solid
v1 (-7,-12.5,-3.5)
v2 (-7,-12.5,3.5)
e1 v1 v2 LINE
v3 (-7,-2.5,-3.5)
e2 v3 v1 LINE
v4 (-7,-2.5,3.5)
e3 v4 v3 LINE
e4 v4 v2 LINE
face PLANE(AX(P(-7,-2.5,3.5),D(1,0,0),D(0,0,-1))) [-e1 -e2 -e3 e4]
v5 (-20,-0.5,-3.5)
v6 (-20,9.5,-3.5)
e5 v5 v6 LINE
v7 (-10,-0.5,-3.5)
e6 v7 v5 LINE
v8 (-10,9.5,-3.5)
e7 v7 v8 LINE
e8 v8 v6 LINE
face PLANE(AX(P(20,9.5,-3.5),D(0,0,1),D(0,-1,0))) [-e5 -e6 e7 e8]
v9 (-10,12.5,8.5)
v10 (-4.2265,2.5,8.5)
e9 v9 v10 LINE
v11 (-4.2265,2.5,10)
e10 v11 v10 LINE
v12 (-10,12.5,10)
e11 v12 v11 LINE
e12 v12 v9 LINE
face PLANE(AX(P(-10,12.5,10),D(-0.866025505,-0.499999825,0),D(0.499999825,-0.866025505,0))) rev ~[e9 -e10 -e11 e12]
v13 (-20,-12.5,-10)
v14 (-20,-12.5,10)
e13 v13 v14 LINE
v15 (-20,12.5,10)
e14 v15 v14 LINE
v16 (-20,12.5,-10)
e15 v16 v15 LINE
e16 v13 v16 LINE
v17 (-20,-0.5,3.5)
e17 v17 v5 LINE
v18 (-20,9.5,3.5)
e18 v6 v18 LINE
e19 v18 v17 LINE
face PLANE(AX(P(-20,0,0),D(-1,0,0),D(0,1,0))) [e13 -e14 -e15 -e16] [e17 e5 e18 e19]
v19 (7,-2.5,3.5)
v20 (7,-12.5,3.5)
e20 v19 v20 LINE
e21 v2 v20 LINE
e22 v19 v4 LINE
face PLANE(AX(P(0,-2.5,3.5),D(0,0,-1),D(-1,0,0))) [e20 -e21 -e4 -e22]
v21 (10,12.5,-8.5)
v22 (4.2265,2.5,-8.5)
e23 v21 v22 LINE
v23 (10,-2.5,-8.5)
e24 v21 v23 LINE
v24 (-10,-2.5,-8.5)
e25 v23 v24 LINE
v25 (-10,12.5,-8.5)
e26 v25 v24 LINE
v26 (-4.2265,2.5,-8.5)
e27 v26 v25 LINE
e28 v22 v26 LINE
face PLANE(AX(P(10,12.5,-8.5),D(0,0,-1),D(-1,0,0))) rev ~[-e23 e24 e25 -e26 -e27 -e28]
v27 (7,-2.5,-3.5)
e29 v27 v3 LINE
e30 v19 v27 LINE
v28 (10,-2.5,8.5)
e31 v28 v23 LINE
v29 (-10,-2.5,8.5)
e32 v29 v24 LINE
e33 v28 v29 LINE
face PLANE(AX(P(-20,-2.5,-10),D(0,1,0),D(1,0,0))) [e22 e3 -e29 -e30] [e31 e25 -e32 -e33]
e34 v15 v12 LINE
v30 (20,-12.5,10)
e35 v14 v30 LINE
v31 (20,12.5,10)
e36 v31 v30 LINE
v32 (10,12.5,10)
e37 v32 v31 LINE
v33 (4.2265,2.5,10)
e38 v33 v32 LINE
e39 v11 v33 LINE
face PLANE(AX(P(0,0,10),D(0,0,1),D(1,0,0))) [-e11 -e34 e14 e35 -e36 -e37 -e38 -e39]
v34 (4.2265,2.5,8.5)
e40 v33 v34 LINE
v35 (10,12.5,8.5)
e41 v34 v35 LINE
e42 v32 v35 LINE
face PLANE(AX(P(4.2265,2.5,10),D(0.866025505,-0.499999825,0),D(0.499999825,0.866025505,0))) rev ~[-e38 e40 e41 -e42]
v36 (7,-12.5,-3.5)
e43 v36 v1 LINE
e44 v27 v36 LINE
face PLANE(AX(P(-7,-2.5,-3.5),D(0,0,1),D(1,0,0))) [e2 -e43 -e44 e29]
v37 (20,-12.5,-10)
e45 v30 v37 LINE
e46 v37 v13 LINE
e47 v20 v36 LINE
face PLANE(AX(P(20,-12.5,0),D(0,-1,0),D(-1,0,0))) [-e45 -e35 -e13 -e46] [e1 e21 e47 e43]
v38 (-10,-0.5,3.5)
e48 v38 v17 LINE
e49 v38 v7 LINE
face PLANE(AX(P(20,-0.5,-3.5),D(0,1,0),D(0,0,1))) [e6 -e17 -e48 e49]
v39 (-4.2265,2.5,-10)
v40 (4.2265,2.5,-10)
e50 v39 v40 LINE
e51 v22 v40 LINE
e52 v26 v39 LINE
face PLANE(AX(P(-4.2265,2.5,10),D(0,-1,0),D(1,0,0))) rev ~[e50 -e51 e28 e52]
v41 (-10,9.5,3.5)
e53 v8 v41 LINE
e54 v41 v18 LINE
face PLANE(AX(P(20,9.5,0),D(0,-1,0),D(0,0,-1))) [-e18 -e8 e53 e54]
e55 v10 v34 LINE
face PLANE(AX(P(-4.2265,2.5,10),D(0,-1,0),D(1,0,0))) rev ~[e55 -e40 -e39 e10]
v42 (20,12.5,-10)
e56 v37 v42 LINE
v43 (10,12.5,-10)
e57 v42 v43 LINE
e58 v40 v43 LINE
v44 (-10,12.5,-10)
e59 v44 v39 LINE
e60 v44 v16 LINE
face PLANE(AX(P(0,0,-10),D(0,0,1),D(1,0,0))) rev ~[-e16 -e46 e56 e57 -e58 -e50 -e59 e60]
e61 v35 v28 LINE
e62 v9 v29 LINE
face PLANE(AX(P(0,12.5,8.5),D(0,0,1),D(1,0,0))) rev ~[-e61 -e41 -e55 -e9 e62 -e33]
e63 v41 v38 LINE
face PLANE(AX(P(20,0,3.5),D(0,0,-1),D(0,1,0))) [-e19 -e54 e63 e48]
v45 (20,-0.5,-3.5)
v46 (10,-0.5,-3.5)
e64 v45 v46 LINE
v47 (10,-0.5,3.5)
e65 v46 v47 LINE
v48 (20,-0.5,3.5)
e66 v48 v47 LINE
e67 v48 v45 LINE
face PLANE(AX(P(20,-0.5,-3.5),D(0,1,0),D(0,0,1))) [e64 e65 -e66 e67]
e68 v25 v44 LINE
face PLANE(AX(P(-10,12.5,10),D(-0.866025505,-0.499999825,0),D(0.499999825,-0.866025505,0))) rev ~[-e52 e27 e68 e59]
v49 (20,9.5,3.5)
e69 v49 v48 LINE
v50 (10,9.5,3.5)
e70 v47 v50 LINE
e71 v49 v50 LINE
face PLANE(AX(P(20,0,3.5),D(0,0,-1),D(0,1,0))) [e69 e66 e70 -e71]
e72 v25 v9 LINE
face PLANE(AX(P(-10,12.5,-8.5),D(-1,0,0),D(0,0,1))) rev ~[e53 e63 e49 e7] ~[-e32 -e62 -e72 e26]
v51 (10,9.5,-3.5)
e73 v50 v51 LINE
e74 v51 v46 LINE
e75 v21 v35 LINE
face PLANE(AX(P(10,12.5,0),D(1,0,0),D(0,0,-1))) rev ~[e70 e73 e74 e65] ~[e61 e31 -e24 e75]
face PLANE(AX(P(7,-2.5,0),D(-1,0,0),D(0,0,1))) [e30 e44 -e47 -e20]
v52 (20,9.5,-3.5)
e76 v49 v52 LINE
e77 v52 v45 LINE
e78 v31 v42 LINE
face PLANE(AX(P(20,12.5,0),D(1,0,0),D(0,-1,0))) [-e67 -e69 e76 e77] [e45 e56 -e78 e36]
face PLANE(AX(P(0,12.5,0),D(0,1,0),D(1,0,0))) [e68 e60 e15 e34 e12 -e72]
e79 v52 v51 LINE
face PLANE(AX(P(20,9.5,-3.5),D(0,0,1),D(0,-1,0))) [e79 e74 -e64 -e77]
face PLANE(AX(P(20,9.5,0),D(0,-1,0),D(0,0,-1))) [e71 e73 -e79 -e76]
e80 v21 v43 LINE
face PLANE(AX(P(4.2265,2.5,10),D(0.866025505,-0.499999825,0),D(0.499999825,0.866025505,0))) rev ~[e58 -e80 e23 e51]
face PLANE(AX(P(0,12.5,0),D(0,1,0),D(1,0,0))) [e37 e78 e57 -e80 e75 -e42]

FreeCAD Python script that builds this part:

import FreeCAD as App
import Part
import Sketcher

V = App.Vector
Q = App.Units.Quantity

doc = App.newDocument("Part")
params = doc.addObject("Spreadsheet::Sheet", "Params")
for row, (alias, value) in enumerate([
    ("sketch1_width", "40 mm"),
    ("sketch1_height", "25 mm"),
    ("pad1_length", "20 mm"),
    ("sketch2_width", "20 mm"),
    ("sketch2_height", "17 mm"),
    ("pocket1_length", "15 mm"),
    ("sketch3_width", "20 mm"),
    ("sketch4_width", "10 mm"),
    ("sketch4_height", "7 mm"),
    ("sketch5_width", "14 mm"),
    ("sketch5_height", "7 mm"),
], start=1):
    params.set(f"A{row}", alias)
    params.set(f"B{row}", "=" + value)
    params.setAlias(f"B{row}", alias)

body = doc.addObject("PartDesign::Body", "Body")

# Sketch on XY plane
sketch1 = body.newObject("Sketcher::SketchObject", "Sketch")
sketch1.AttachmentSupport = (doc.getObject("XY_Plane"), [""])
sketch1.MapMode = "FlatFace"
sketch1.addGeometry(Part.LineSegment(V(20, 12.5, 0), V(-20, 12.5, 0)), False)
sketch1.addGeometry(Part.LineSegment(V(-20, 12.5, 0), V(-20, -12.5, 0)), False)
sketch1.addGeometry(Part.LineSegment(V(-20, -12.5, 0), V(20, -12.5, 0)), False)
sketch1.addGeometry(Part.LineSegment(V(20, -12.5, 0), V(20, 12.5, 0)), False)
sketch1.addConstraint(Sketcher.Constraint("Coincident", 0, 2, 1, 1))
sketch1.addConstraint(Sketcher.Constraint("Coincident", 1, 2, 2, 1))
sketch1.addConstraint(Sketcher.Constraint("Coincident", 2, 2, 3, 1))
sketch1.addConstraint(Sketcher.Constraint("Coincident", 3, 2, 0, 1))
sketch1.addConstraint(Sketcher.Constraint("Horizontal", 0))
sketch1.addConstraint(Sketcher.Constraint("Vertical", 1))
sketch1.addConstraint(Sketcher.Constraint("Horizontal", 2))
sketch1.addConstraint(Sketcher.Constraint("Vertical", 3))
sketch1.addConstraint(Sketcher.Constraint("Symmetric", 0, 2, 2, 2, -1, 1))
sketch1.addConstraint(Sketcher.Constraint("DistanceX", 0, 2, 0, 1, 40.0))
sketch1.addConstraint(Sketcher.Constraint("DistanceY", 1, 2, 1, 1, 25.0))
sketch1.setExpression("Constraints[9]", "Params.sketch1_width")
sketch1.setExpression("Constraints[10]", "Params.sketch1_height")
pad1 = body.newObject("PartDesign::Pad", "Pad")
pad1.Profile = sketch1
pad1.setExpression("Length", "Params.pad1_length")
pad1.Midplane = True

# Sketch on XZ plane
sketch2 = body.newObject("Sketcher::SketchObject", "Sketch001")
sketch2.AttachmentSupport = (doc.getObject("XZ_Plane"), [""])
sketch2.MapMode = "FlatFace"
sketch2.AttachmentOffset = App.Placement(V(0, 0, -12.5), App.Rotation())
sketch2.addGeometry(Part.LineSegment(V(10, -8.5, 0), V(-10, -8.5, 0)), False)
sketch2.addGeometry(Part.LineSegment(V(-10, -8.5, 0), V(-10, 8.5, 0)), False)
sketch2.addGeometry(Part.LineSegment(V(-10, 8.5, 0), V(10, 8.5, 0)), False)
sketch2.addGeometry(Part.LineSegment(V(10, 8.5, 0), V(10, -8.5, 0)), False)
sketch2.addConstraint(Sketcher.Constraint("Coincident", 0, 2, 1, 1))
sketch2.addConstraint(Sketcher.Constraint("Coincident", 1, 2, 2, 1))
sketch2.addConstraint(Sketcher.Constraint("Coincident", 2, 2, 3, 1))
sketch2.addConstraint(Sketcher.Constraint("Coincident", 3, 2, 0, 1))
sketch2.addConstraint(Sketcher.Constraint("Horizontal", 0))
sketch2.addConstraint(Sketcher.Constraint("Vertical", 1))
sketch2.addConstraint(Sketcher.Constraint("Horizontal", 2))
sketch2.addConstraint(Sketcher.Constraint("Vertical", 3))
sketch2.addConstraint(Sketcher.Constraint("Symmetric", 0, 2, 2, 2, -1, 1))
sketch2.addConstraint(Sketcher.Constraint("DistanceX", 0, 2, 0, 1, 20.0))
sketch2.addConstraint(Sketcher.Constraint("DistanceY", 1, 1, 1, 2, 17.0))
sketch2.setExpression("Constraints[9]", "Params.sketch2_width")
sketch2.setExpression("Constraints[10]", "Params.sketch2_height")
pocket1 = body.newObject("PartDesign::Pocket", "Pocket")
pocket1.Profile = sketch2
pocket1.setExpression("Length", "Params.pocket1_length")
pocket1.Reversed = True

# Sketch on XY plane
sketch3 = body.newObject("Sketcher::SketchObject", "Sketch002")
sketch3.AttachmentSupport = (doc.getObject("XY_Plane"), [""])
sketch3.MapMode = "FlatFace"
sketch3.AttachmentOffset = App.Placement(V(0, 0, 10), App.Rotation())
sketch3.addGeometry(Part.LineSegment(V(-10, 12.5, 0), V(-4.2265, 2.5, 0)), False)
sketch3.addGeometry(Part.LineSegment(V(-4.2265, 2.5, 0), V(4.2265, 2.5, 0)), False)
sketch3.addGeometry(Part.LineSegment(V(4.2265, 2.5, 0), V(10, 12.5, 0)), False)
sketch3.addGeometry(Part.LineSegment(V(10, 12.5, 0), V(-10, 12.5, 0)), False)
sketch3.addConstraint(Sketcher.Constraint("Coincident", 0, 2, 1, 1))
sketch3.addConstraint(Sketcher.Constraint("Coincident", 1, 2, 2, 1))
sketch3.addConstraint(Sketcher.Constraint("Coincident", 2, 2, 3, 1))
sketch3.addConstraint(Sketcher.Constraint("Coincident", 3, 2, 0, 1))
sketch3.addConstraint(Sketcher.Constraint("Horizontal", 1))
sketch3.addConstraint(Sketcher.Constraint("Horizontal", 3))
sketch3.addConstraint(Sketcher.Constraint("Equal", 0, 2))
sketch3.addConstraint(Sketcher.Constraint("DistanceX", 3, 2, 3, 1, 20.0))
sketch3.addConstraint(Sketcher.Constraint("Angle", 0, Q("-60 deg")))
sketch3.addConstraint(Sketcher.Constraint("DistanceX", -1, 1, 2, 2, 10.0))
sketch3.addConstraint(Sketcher.Constraint("DistanceY", 1, 2, 2, 2, 10.0))
sketch3.addConstraint(Sketcher.Constraint("DistanceY", -1, 1, 0, 2, 2.5))
sketch3.setExpression("Constraints[7]", "Params.sketch3_width")
pocket2 = body.newObject("PartDesign::Pocket", "Pocket001")
pocket2.Profile = sketch3
pocket2.Type = "ThroughAll"

# Sketch on YZ plane
sketch4 = body.newObject("Sketcher::SketchObject", "Sketch003")
sketch4.AttachmentSupport = (doc.getObject("YZ_Plane"), [""])
sketch4.MapMode = "FlatFace"
sketch4.AttachmentOffset = App.Placement(V(0, 0, 20), App.Rotation())
sketch4.addGeometry(Part.LineSegment(V(9.5, -3.5, 0), V(9.5, 3.5, 0)), False)
sketch4.addGeometry(Part.LineSegment(V(9.5, 3.5, 0), V(-0.5, 3.5, 0)), False)
sketch4.addGeometry(Part.LineSegment(V(-0.5, 3.5, 0), V(-0.5, -3.5, 0)), False)
sketch4.addGeometry(Part.LineSegment(V(-0.5, -3.5, 0), V(9.5, -3.5, 0)), False)
sketch4.addConstraint(Sketcher.Constraint("Coincident", 0, 2, 1, 1))
sketch4.addConstraint(Sketcher.Constraint("Coincident", 1, 2, 2, 1))
sketch4.addConstraint(Sketcher.Constraint("Coincident", 2, 2, 3, 1))
sketch4.addConstraint(Sketcher.Constraint("Coincident", 3, 2, 0, 1))
sketch4.addConstraint(Sketcher.Constraint("Vertical", 0))
sketch4.addConstraint(Sketcher.Constraint("Horizontal", 1))
sketch4.addConstraint(Sketcher.Constraint("Vertical", 2))
sketch4.addConstraint(Sketcher.Constraint("Horizontal", 3))
sketch4.addConstraint(Sketcher.Constraint("DistanceX", 1, 2, 1, 1, 10.0))
sketch4.addConstraint(Sketcher.Constraint("DistanceY", 0, 1, 0, 2, 7.0))
sketch4.addConstraint(Sketcher.Constraint("DistanceX", -1, 1, 0, 2, 9.5))
sketch4.addConstraint(Sketcher.Constraint("DistanceY", -1, 1, 0, 2, 3.5))
sketch4.setExpression("Constraints[8]", "Params.sketch4_width")
sketch4.setExpression("Constraints[9]", "Params.sketch4_height")
pocket3 = body.newObject("PartDesign::Pocket", "Pocket002")
pocket3.Profile = sketch4
pocket3.Type = "ThroughAll"

# Sketch on XZ plane
sketch5 = body.newObject("Sketcher::SketchObject", "Sketch004")
sketch5.AttachmentSupport = (doc.getObject("XZ_Plane"), [""])
sketch5.MapMode = "FlatFace"
sketch5.AttachmentOffset = App.Placement(V(0, 0, 2.5), App.Rotation())
sketch5.addGeometry(Part.LineSegment(V(-7, 3.5, 0), V(7, 3.5, 0)), False)
sketch5.addGeometry(Part.LineSegment(V(7, 3.5, 0), V(7, -3.5, 0)), False)
sketch5.addGeometry(Part.LineSegment(V(7, -3.5, 0), V(-7, -3.5, 0)), False)
sketch5.addGeometry(Part.LineSegment(V(-7, -3.5, 0), V(-7, 3.5, 0)), False)
sketch5.addConstraint(Sketcher.Constraint("Coincident", 0, 2, 1, 1))
sketch5.addConstraint(Sketcher.Constraint("Coincident", 1, 2, 2, 1))
sketch5.addConstraint(Sketcher.Constraint("Coincident", 2, 2, 3, 1))
sketch5.addConstraint(Sketcher.Constraint("Coincident", 3, 2, 0, 1))
sketch5.addConstraint(Sketcher.Constraint("Horizontal", 0))
sketch5.addConstraint(Sketcher.Constraint("Vertical", 1))
sketch5.addConstraint(Sketcher.Constraint("Horizontal", 2))
sketch5.addConstraint(Sketcher.Constraint("Vertical", 3))
sketch5.addConstraint(Sketcher.Constraint("Symmetric", 0, 2, 2, 2, -1, 1))
sketch5.addConstraint(Sketcher.Constraint("DistanceX", 0, 1, 0, 2, 14.0))
sketch5.addConstraint(Sketcher.Constraint("DistanceY", 1, 2, 1, 1, 7.0))
sketch5.setExpression("Constraints[9]", "Params.sketch5_width")
sketch5.setExpression("Constraints[10]", "Params.sketch5_height")
pocket4 = body.newObject("PartDesign::Pocket", "Pocket003")
pocket4.Profile = sketch5
pocket4.Type = "ThroughAll"
pocket4.Reversed = True

doc.recompute()
